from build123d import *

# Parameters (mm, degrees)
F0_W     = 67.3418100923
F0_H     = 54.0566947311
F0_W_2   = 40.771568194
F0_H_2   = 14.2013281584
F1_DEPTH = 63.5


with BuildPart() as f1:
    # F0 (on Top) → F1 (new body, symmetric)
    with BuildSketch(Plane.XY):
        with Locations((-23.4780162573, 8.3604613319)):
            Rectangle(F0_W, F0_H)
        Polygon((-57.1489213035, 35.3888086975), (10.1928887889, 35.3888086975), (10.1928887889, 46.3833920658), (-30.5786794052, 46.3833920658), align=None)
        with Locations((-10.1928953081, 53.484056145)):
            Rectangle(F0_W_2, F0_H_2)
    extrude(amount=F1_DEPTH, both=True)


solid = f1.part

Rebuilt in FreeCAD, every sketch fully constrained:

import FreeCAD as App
import Part
import Sketcher
from FreeCAD import Vector
Q = App.Units.Quantity

doc = App.newDocument("Part")
body = doc.addObject("PartDesign::Body", "Body")

# Sketch on XY plane
sketch1 = body.newObject("Sketcher::SketchObject", "Sketch")
sketch1.AttachmentSupport = (doc.getObject("XY_Plane"), [""])
sketch1.MapMode = "FlatFace"
sketch1.addGeometry([
    Part.LineSegment(Vector(-57, 35, 0), Vector(-57, -19, 0)),  # 0
    Part.LineSegment(Vector(-57, -19, 0), Vector(10, -19, 0)),  # 1
    Part.LineSegment(Vector(10, -19, 0), Vector(10, 61, 0)),  # 2
    Part.LineSegment(Vector(10, 61, 0), Vector(-31, 61, 0)),  # 3
    Part.LineSegment(Vector(-31, 61, 0), Vector(-31, 46, 0)),  # 4
    Part.LineSegment(Vector(-31, 46, 0), Vector(-57, 35, 0)),  # 5
], False)
sketch1.addConstraint([
    Sketcher.Constraint("Coincident", 0, 2, 1, 1),
    Sketcher.Constraint("Coincident", 1, 2, 2, 1),
    Sketcher.Constraint("Coincident", 2, 2, 3, 1),
    Sketcher.Constraint("Coincident", 3, 2, 4, 1),
    Sketcher.Constraint("Coincident", 4, 2, 5, 1),
    Sketcher.Constraint("Coincident", 5, 2, 0, 1),
    Sketcher.Constraint("Vertical", 0),
    Sketcher.Constraint("Horizontal", 1),
    Sketcher.Constraint("Vertical", 2),
    Sketcher.Constraint("Horizontal", 3),
    Sketcher.Constraint("Vertical", 4),
    Sketcher.Constraint("DistanceX", 1, 1, 1, 2, 67.34181),
    Sketcher.Constraint("DistanceX", 3, 2, 3, 1, 40.771568),
    Sketcher.Constraint("DistanceY", 4, 2, 4, 1, 14.201328),
    Sketcher.Constraint("Distance", 5, 28.755149),
    Sketcher.Constraint("DistanceY", 0, 2, 0, 1, 54.056695),
    Sketcher.Constraint("DistanceX", 0, 2, -1, 1, 57.148921),
    Sketcher.Constraint("DistanceY", -1, 1, 2, 2, 60.58472),
])
pad1 = body.newObject("PartDesign::Pad", "Pad")
pad1.Profile = sketch1
pad1.Length = Q("5 in")
pad1.Midplane = True

doc.recompute()
